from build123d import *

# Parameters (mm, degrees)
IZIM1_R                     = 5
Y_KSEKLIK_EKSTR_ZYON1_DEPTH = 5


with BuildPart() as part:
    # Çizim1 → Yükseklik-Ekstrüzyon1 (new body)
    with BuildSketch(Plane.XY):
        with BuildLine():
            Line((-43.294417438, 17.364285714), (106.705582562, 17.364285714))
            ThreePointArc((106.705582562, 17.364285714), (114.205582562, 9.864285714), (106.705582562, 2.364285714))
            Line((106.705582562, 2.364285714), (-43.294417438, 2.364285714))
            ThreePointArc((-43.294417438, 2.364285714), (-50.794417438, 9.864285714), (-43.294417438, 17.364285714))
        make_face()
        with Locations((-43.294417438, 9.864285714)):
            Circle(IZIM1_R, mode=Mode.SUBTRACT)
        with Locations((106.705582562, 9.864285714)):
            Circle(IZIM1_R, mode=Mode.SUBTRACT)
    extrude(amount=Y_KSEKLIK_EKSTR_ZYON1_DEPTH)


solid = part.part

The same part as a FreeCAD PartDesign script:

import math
import FreeCAD as App
import Part
import Sketcher

V = App.Vector
Q = App.Units.Quantity

doc = App.newDocument("Part")
body = doc.addObject("PartDesign::Body", "Body")

# Sketch on XY plane
sketch1 = body.newObject("Sketcher::SketchObject", "Sketch")
sketch1.AttachmentSupport = (doc.getObject("XY_Plane"), [""])
sketch1.MapMode = "FlatFace"
sketch1.addGeometry([
    Part.LineSegment(V(106.705583, 17.364286, 0), V(-43.294417, 17.364286, 0)),  # 0
    Part.ArcOfCircle(Part.Circle(V(-43.294417, 9.864286, 0), V(0, 0, 1), 7.5), math.radians(90), math.radians(270)),  # 1
    Part.LineSegment(V(-43.294417, 2.364286, 0), V(106.705583, 2.364286, 0)),  # 2
    Part.ArcOfCircle(Part.Circle(V(106.705583, 9.864286, 0), V(0, 0, 1), 7.5), math.radians(-90), math.radians(90)),  # 3
    Part.Circle(V(106.705583, 9.864286, 0), V(0, 0, 1), 5),  # 4
    Part.Circle(V(-43.294417, 9.864286, 0), V(0, 0, 1), 5),  # 5
], False)
sketch1.addConstraint([
    Sketcher.Constraint("Tangent", 0, 2, 1, 1),
    Sketcher.Constraint("Tangent", 1, 2, 2, 1),
    Sketcher.Constraint("Tangent", 2, 2, 3, 1),
    Sketcher.Constraint("Tangent", 3, 2, 0, 1),
    Sketcher.Constraint("Horizontal", 0),
    Sketcher.Constraint("Horizontal", 2),
    Sketcher.Constraint("Coincident", 4, 3, 3, 3),
    Sketcher.Constraint("Coincident", 5, 3, 1, 3),
    Sketcher.Constraint("Equal", 4, 5),
    Sketcher.Constraint("Diameter", 4, Q("10 mm")),
    Sketcher.Constraint("Radius", 1, Q("7.5 mm")),
    Sketcher.Constraint("DistanceX", 0, 2, 0, 1, Q("150 mm")),
    Sketcher.Constraint("DistanceX", 1, 3, -1, 1, Q("43.294417 mm")),
    Sketcher.Constraint("DistanceY", -1, 1, 1, 3, Q("9.864286 mm")),
])
pad1 = body.newObject("PartDesign::Pad", "Pad")
pad1.Profile = sketch1
pad1.Length = 5

doc.recompute()
